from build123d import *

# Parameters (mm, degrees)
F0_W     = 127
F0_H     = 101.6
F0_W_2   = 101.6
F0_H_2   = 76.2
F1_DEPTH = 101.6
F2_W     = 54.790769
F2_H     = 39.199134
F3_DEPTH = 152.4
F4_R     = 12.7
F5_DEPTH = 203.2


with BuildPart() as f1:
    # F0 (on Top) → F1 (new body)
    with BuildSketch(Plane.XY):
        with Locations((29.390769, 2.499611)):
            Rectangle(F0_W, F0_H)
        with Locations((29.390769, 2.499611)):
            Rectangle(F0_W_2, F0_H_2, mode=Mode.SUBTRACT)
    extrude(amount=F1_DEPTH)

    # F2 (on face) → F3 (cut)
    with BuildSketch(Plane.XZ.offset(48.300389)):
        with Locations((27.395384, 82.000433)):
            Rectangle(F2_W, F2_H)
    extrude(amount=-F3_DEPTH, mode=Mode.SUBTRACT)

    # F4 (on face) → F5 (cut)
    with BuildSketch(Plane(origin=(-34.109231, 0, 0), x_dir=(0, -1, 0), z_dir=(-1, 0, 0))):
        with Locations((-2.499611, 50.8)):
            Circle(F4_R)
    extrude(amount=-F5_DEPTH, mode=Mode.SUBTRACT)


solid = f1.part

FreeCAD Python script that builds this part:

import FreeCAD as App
import Part
import Sketcher
Q = App.Units.Quantity


def add_polygon(sketch, points):
    """Adds a closed chain of lines whose ends are joined by coincident constraints."""
    first, n = sketch.GeometryCount, len(points)
    for a, b in zip(points, points[1:] + points[:1]):
        sketch.addGeometry(Part.LineSegment(App.Vector(*a, 0), App.Vector(*b, 0)), False)
    for i in range(n):
        sketch.addConstraint(Sketcher.Constraint("Coincident", first + i, 2, first + (i + 1) % n, 1))

doc = App.newDocument("Part")
params = doc.addObject("Spreadsheet::Sheet", "Params")
for row, (alias, value) in enumerate([
    ("sketch1_width", "5 in"),
    ("sketch1_width2", "4 in"),
    ("sketch1_height", "3 in"),
    ("pad1_length", "4 in"),
    ("pocket1_length", "6 in"),
    ("sketch3_diameter", "1 in"),
    ("pocket2_length", "8 in"),
], start=1):
    params.set(f"A{row}", alias)
    params.set(f"B{row}", "=" + value)
    params.setAlias(f"B{row}", alias)

body = doc.addObject("PartDesign::Body", "Body")

sketch1 = body.newObject("Sketcher::SketchObject", "Sketch")
sketch1.AttachmentSupport = (doc.getObject("XY_Plane"), [""])
sketch1.MapMode = "FlatFace"
add_polygon(sketch1, [(-34, 53), (-34, -48), (93, -48), (93, 53)])
add_polygon(sketch1, [(80, -36), (-21, -36), (-21, 41), (80, 41)])
sketch1.addConstraint([
    Sketcher.Constraint("Vertical", 0),
    Sketcher.Constraint("Horizontal", 1),
    Sketcher.Constraint("Vertical", 2),
    Sketcher.Constraint("Horizontal", 3),
    Sketcher.Constraint("Horizontal", 4),
    Sketcher.Constraint("Vertical", 5),
    Sketcher.Constraint("Horizontal", 6),
    Sketcher.Constraint("Vertical", 7),
    Sketcher.Constraint("Equal", 6, 0),
    Sketcher.Constraint("DistanceX", 1, 1, 1, 2, Q("5 in")),
    Sketcher.Constraint("DistanceX", 4, 2, 4, 1, Q("4 in")),
    Sketcher.Constraint("DistanceY", 5, 1, 5, 2, Q("3 in")),
    Sketcher.Constraint("DistanceX", 0, 2, 4, 2, Q("0.5 in")),
    Sketcher.Constraint("DistanceY", 0, 2, 4, 2, Q("0.5 in")),
    Sketcher.Constraint("DistanceX", 0, 2, -1, 1, 34.109231),
    Sketcher.Constraint("DistanceY", 0, 2, -1, 1, 48.300389),
])
sketch1.setExpression("Constraints[17]", "Params.sketch1_width")
sketch1.setExpression("Constraints[18]", "Params.sketch1_width2")
sketch1.setExpression("Constraints[19]", "Params.sketch1_height")
pad1 = body.newObject("PartDesign::Pad", "Pad")
pad1.Profile = sketch1
pad1.setExpression("Length", "Params.pad1_length")

sketch2 = body.newObject("Sketcher::SketchObject", "Sketch001")
sketch2.AttachmentSupport = (doc.getObject("XZ_Plane"), [""])
sketch2.MapMode = "FlatFace"
sketch2.AttachmentOffset = App.Placement(App.Vector(0, 0, 48.300389), App.Rotation())
add_polygon(sketch2, [(0, 102), (0, 62), (55, 62), (55, 102)])
sketch2.addConstraint([
    Sketcher.Constraint("Vertical", 0),
    Sketcher.Constraint("Horizontal", 1),
    Sketcher.Constraint("Vertical", 2),
    Sketcher.Constraint("Horizontal", 3),
    Sketcher.Constraint("PointOnObject", 0, 2, -2),
    Sketcher.Constraint("DistanceY", -1, 1, 2, 2, Q("4 in")),
    Sketcher.Constraint("DistanceX", 1, 1, 1, 2, 54.790769),
    Sketcher.Constraint("DistanceY", 0, 2, 0, 1, 39.199134),
])
pocket1 = body.newObject("PartDesign::Pocket", "Pocket")
pocket1.Profile = sketch2
pocket1.setExpression("Length", "Params.pocket1_length")

sketch3 = body.newObject("Sketcher::SketchObject", "Sketch002")
sketch3.AttachmentSupport = (doc.getObject("YZ_Plane"), [""])
sketch3.MapMode = "FlatFace"
sketch3.AttachmentOffset = App.Placement(App.Vector(0, 0, -34.109231), App.Rotation())
sketch3.addGeometry(Part.Circle(App.Vector(2, 51, 0), App.Vector(0, 0, 1), 13), False)
sketch3.addConstraint([
    Sketcher.Constraint("Diameter", 0, Q("1 in")),
    Sketcher.Constraint("DistanceY", -1, 1, 0, 3, Q("2 in")),
    Sketcher.Constraint("DistanceX", -1, 1, 0, 3, 2.499611),
])
sketch3.setExpression("Constraints[0]", "Params.sketch3_diameter")
pocket2 = body.newObject("PartDesign::Pocket", "Pocket001")
pocket2.Profile = sketch3
pocket2.setExpression("Length", "Params.pocket2_length")
pocket2.Reversed = True

doc.recompute()
